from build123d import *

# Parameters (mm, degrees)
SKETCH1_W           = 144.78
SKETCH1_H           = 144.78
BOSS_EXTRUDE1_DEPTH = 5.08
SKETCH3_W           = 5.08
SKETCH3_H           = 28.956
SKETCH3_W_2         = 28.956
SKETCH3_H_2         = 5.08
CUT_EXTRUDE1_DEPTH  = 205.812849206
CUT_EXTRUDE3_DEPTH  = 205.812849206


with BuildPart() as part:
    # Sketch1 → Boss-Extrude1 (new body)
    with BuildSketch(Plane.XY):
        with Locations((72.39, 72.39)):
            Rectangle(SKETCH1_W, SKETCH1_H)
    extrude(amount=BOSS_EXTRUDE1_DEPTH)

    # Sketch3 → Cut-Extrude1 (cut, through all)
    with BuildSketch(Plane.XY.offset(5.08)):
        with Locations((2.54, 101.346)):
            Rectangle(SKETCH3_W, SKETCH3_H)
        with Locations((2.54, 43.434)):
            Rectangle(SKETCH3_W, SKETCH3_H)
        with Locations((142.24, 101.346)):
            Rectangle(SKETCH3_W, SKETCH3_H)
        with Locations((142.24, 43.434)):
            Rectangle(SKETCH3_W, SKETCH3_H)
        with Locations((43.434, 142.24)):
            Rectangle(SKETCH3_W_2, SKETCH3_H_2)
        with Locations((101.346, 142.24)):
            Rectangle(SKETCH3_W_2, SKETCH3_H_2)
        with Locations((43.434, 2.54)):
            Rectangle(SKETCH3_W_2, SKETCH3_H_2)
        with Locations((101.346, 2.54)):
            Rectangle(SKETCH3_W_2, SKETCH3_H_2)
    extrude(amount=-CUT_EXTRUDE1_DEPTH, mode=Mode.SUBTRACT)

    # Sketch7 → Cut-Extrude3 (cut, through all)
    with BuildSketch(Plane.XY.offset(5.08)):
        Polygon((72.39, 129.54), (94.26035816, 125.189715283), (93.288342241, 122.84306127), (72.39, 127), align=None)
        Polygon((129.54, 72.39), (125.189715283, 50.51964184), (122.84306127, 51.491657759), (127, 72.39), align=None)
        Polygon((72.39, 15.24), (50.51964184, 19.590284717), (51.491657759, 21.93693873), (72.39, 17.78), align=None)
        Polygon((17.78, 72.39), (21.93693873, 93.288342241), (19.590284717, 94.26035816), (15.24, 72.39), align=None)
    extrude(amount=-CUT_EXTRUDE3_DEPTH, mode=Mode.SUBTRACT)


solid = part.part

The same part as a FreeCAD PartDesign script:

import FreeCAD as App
import Part
import Sketcher
from FreeCAD import Vector
Q = App.Units.Quantity


def add_polygon(sketch, points):
    """Adds a closed chain of lines whose ends are joined by coincident constraints."""
    first, n = sketch.GeometryCount, len(points)
    for a, b in zip(points, points[1:] + points[:1]):
        sketch.addGeometry(Part.LineSegment(App.Vector(*a, 0), App.Vector(*b, 0)), False)
    for i in range(n):
        sketch.addConstraint(Sketcher.Constraint("Coincident", first + i, 2, first + (i + 1) % n, 1))

doc = App.newDocument("Part")
body = doc.addObject("PartDesign::Body", "Body")

# Sketch on XY plane
sketch1 = body.newObject("Sketcher::SketchObject", "Sketch")
sketch1.AttachmentSupport = (doc.getObject("XY_Plane"), [""])
sketch1.MapMode = "FlatFace"
add_polygon(sketch1, [(0, 145), (0, 0), (145, 0), (145, 145)])  # lines 0-3
sketch1.addConstraint([
    Sketcher.Constraint("Vertical", 0),
    Sketcher.Constraint("Horizontal", 1),
    Sketcher.Constraint("Vertical", 2),
    Sketcher.Constraint("Horizontal", 3),
    Sketcher.Constraint("Coincident", 0, 2, -1, 1),
    Sketcher.Constraint("Equal", 3, 0),
    Sketcher.Constraint("DistanceX", 1, 1, 1, 2, Q("5.7 in")),
])
pad1 = body.newObject("PartDesign::Pad", "Pad")
pad1.Profile = sketch1
pad1.Length = Q("0.2 in")

# Sketch on XY plane
sketch2 = body.newObject("Sketcher::SketchObject", "Sketch001")
sketch2.AttachmentSupport = (doc.getObject("XY_Plane"), [""])
sketch2.MapMode = "FlatFace"
sketch2.AttachmentOffset = App.Placement(Vector(0, 0, 0.2 * 25.4), App.Rotation())
add_polygon(sketch2, [(0, 116), (0, 87), (5, 87), (5, 116)])  # lines 0-3
add_polygon(sketch2, [(0, 58), (0, 29), (5, 29), (5, 58)])  # lines 4-7
add_polygon(sketch2, [(140, 116), (140, 87), (145, 87), (145, 116)])  # lines 8-11
add_polygon(sketch2, [(140, 58), (140, 29), (145, 29), (145, 58)])  # lines 12-15
add_polygon(sketch2, [(29, 145), (29, 140), (58, 140), (58, 145)])  # lines 16-19
add_polygon(sketch2, [(87, 145), (87, 140), (116, 140), (116, 145)])  # lines 20-23
add_polygon(sketch2, [(29, 5), (29, 0), (58, 0), (58, 5)])  # lines 24-27
add_polygon(sketch2, [(87, 5), (87, 0), (116, 0), (116, 5)])  # lines 28-31
sketch2.addConstraint([
    Sketcher.Constraint("Vertical", 0),
    Sketcher.Constraint("Horizontal", 1),
    Sketcher.Constraint("Vertical", 2),
    Sketcher.Constraint("Horizontal", 3),
    Sketcher.Constraint("Vertical", 4),
    Sketcher.Constraint("Horizontal", 5),
    Sketcher.Constraint("Vertical", 6),
    Sketcher.Constraint("Horizontal", 7),
    Sketcher.Constraint("Vertical", 8),
    Sketcher.Constraint("Horizontal", 9),
    Sketcher.Constraint("Vertical", 10),
    Sketcher.Constraint("Horizontal", 11),
    Sketcher.Constraint("Vertical", 12),
    Sketcher.Constraint("Horizontal", 13),
    Sketcher.Constraint("Vertical", 14),
    Sketcher.Constraint("Horizontal", 15),
    Sketcher.Constraint("Vertical", 16),
    Sketcher.Constraint("Horizontal", 17),
    Sketcher.Constraint("Vertical", 18),
    Sketcher.Constraint("Horizontal", 19),
    Sketcher.Constraint("Vertical", 20),
    Sketcher.Constraint("Horizontal", 21),
    Sketcher.Constraint("Vertical", 22),
    Sketcher.Constraint("Horizontal", 23),
    Sketcher.Constraint("Vertical", 24),
    Sketcher.Constraint("Horizontal", 25),
    Sketcher.Constraint("Vertical", 26),
    Sketcher.Constraint("Horizontal", 27),
    Sketcher.Constraint("Vertical", 28),
    Sketcher.Constraint("Horizontal", 29),
    Sketcher.Constraint("Vertical", 30),
    Sketcher.Constraint("Horizontal", 31),
    Sketcher.Constraint("PointOnObject", 0, 2, -2),
    Sketcher.Constraint("PointOnObject", 4, 2, -2),
    Sketcher.Constraint("PointOnObject", 24, 2, -1),
    Sketcher.Constraint("PointOnObject", 28, 2, -1),
    Sketcher.Constraint("Horizontal", 1, 2, 8, 2),
    Sketcher.Constraint("Horizontal", 3, 2, 10, 2),
    Sketcher.Constraint("Horizontal", 5, 2, 12, 2),
    Sketcher.Constraint("Horizontal", 7, 2, 14, 2),
    Sketcher.Constraint("Horizontal", 17, 2, 20, 2),
    Sketcher.Constraint("Horizontal", 19, 2, 22, 2),
    Sketcher.Constraint("Horizontal", 27, 2, 30, 2),
    Sketcher.Constraint("Vertical", 2, 2, 5, 2),
    Sketcher.Constraint("Vertical", 11, 2, 12, 2),
    Sketcher.Constraint("Vertical", 10, 2, 13, 2),
    Sketcher.Constraint("Vertical", 19, 2, 24, 2),
    Sketcher.Constraint("Vertical", 18, 2, 25, 2),
    Sketcher.Constraint("Vertical", 23, 2, 28, 2),
    Sketcher.Constraint("Vertical", 22, 2, 29, 2),
    Sketcher.Constraint("Equal", 7, 9),
    Sketcher.Constraint("Equal", 19, 21),
    Sketcher.Constraint("Equal", 31, 0),
    Sketcher.Constraint("Equal", 2, 4),
    Sketcher.Constraint("Equal", 15, 16),
    Sketcher.Constraint("Equal", 22, 24),
    Sketcher.Constraint("DistanceX", 1, 1, 1, 2, Q("0.2 in")),
    Sketcher.Constraint("DistanceX", 17, 1, 17, 2, Q("1.14 in")),
    Sketcher.Constraint("DistanceX", -1, 1, 8, 2, Q("5.5 in")),
    Sketcher.Constraint("DistanceY", -1, 1, 16, 2, Q("5.5 in")),
    Sketcher.Constraint("DistanceY", -1, 1, 0, 2, Q("3.42 in")),
    Sketcher.Constraint("DistanceY", -1, 1, 4, 2, Q("1.14 in")),
    Sketcher.Constraint("DistanceX", -1, 1, 16, 2, Q("1.14 in")),
    Sketcher.Constraint("DistanceX", -1, 1, 20, 2, Q("3.42 in")),
])
pocket1 = body.newObject("PartDesign::Pocket", "Pocket")
pocket1.Profile = sketch2
pocket1.Type = "ThroughAll"

# Sketch on XY plane
sketch3 = body.newObject("Sketcher::SketchObject", "Sketch002")
sketch3.AttachmentSupport = (doc.getObject("XY_Plane"), [""])
sketch3.MapMode = "FlatFace"
sketch3.AttachmentOffset = App.Placement(Vector(0, 0, 0.2 * 25.4), App.Rotation())
add_polygon(sketch3, [(94.3, 125.2), (72.4, 129.5), (72.4, 127), (93.3, 122.8)])  # lines 0-3
add_polygon(sketch3, [(125.2, 50.5), (129.5, 72.4), (127, 72.4), (122.8, 51.5)])  # lines 4-7
add_polygon(sketch3, [(50.5, 19.6), (72.4, 15.2), (72.4, 17.8), (51.5, 21.9)])  # lines 8-11
add_polygon(sketch3, [(17.8, 72.4), (21.9, 93.3), (19.6, 94.3), (15.2, 72.4)])  # lines 12-15
sketch3.addConstraint([
    Sketcher.Constraint("Vertical", 1),
    Sketcher.Constraint("Horizontal", 5),
    Sketcher.Constraint("Vertical", 9),
    Sketcher.Constraint("Horizontal", 15),
    Sketcher.Constraint("Parallel", 0, 2),
    Sketcher.Constraint("Perpendicular", 2, 4),
    Sketcher.Constraint("Parallel", 4, 6),
    Sketcher.Constraint("Perpendicular", 3, 7),
    Sketcher.Constraint("Perpendicular", 6, 8),
    Sketcher.Constraint("Parallel", 8, 10),
    Sketcher.Constraint("Perpendicular", 7, 11),
    Sketcher.Constraint("Perpendicular", 10, 12),
    Sketcher.Constraint("Perpendicular", 11, 13),
    Sketcher.Constraint("Parallel", 12, 14),
    Sketcher.Constraint("Horizontal", 5, 2, 14, 2),
    Sketcher.Constraint("Vertical", 1, 2, 8, 2),
    Sketcher.Constraint("Equal", 5, 15),
    Sketcher.Constraint("Equal", 15, 1),
    Sketcher.Constraint("Equal", 1, 9),
    Sketcher.Constraint("Equal", 0, 4),
    Sketcher.Constraint("Equal", 4, 8),
    Sketcher.Constraint("Equal", 10, 12),
    Sketcher.Constraint("DistanceX", 5, 2, 5, 1, Q("0.1 in")),
    Sketcher.Constraint("DistanceY", -1, 1, 1, 2, Q("5 in")),
    Sketcher.Constraint("DistanceX", -1, 1, 5, 2, Q("5 in")),
    Sketcher.Constraint("Distance", 3, Q("0.1 in")),
    Sketcher.Constraint("DistanceY", -1, 1, 8, 2, Q("0.6 in")),
    Sketcher.Constraint("DistanceX", -1, 1, 14, 2, Q("0.6 in")),
    Sketcher.Constraint("Angle", 3, Q("67.5 deg")),
    Sketcher.Constraint("DistanceX", -1, 1, 0, 2, Q("2.85 in")),
    Sketcher.Constraint("DistanceY", -1, 1, 4, 2, Q("2.85 in")),
    Sketcher.Constraint("DistanceY", -1, 1, 2, 2, 122.843061),
])
pocket2 = body.newObject("PartDesign::Pocket", "Pocket001")
pocket2.Profile = sketch3
pocket2.Type = "ThroughAll"

doc.recompute()
